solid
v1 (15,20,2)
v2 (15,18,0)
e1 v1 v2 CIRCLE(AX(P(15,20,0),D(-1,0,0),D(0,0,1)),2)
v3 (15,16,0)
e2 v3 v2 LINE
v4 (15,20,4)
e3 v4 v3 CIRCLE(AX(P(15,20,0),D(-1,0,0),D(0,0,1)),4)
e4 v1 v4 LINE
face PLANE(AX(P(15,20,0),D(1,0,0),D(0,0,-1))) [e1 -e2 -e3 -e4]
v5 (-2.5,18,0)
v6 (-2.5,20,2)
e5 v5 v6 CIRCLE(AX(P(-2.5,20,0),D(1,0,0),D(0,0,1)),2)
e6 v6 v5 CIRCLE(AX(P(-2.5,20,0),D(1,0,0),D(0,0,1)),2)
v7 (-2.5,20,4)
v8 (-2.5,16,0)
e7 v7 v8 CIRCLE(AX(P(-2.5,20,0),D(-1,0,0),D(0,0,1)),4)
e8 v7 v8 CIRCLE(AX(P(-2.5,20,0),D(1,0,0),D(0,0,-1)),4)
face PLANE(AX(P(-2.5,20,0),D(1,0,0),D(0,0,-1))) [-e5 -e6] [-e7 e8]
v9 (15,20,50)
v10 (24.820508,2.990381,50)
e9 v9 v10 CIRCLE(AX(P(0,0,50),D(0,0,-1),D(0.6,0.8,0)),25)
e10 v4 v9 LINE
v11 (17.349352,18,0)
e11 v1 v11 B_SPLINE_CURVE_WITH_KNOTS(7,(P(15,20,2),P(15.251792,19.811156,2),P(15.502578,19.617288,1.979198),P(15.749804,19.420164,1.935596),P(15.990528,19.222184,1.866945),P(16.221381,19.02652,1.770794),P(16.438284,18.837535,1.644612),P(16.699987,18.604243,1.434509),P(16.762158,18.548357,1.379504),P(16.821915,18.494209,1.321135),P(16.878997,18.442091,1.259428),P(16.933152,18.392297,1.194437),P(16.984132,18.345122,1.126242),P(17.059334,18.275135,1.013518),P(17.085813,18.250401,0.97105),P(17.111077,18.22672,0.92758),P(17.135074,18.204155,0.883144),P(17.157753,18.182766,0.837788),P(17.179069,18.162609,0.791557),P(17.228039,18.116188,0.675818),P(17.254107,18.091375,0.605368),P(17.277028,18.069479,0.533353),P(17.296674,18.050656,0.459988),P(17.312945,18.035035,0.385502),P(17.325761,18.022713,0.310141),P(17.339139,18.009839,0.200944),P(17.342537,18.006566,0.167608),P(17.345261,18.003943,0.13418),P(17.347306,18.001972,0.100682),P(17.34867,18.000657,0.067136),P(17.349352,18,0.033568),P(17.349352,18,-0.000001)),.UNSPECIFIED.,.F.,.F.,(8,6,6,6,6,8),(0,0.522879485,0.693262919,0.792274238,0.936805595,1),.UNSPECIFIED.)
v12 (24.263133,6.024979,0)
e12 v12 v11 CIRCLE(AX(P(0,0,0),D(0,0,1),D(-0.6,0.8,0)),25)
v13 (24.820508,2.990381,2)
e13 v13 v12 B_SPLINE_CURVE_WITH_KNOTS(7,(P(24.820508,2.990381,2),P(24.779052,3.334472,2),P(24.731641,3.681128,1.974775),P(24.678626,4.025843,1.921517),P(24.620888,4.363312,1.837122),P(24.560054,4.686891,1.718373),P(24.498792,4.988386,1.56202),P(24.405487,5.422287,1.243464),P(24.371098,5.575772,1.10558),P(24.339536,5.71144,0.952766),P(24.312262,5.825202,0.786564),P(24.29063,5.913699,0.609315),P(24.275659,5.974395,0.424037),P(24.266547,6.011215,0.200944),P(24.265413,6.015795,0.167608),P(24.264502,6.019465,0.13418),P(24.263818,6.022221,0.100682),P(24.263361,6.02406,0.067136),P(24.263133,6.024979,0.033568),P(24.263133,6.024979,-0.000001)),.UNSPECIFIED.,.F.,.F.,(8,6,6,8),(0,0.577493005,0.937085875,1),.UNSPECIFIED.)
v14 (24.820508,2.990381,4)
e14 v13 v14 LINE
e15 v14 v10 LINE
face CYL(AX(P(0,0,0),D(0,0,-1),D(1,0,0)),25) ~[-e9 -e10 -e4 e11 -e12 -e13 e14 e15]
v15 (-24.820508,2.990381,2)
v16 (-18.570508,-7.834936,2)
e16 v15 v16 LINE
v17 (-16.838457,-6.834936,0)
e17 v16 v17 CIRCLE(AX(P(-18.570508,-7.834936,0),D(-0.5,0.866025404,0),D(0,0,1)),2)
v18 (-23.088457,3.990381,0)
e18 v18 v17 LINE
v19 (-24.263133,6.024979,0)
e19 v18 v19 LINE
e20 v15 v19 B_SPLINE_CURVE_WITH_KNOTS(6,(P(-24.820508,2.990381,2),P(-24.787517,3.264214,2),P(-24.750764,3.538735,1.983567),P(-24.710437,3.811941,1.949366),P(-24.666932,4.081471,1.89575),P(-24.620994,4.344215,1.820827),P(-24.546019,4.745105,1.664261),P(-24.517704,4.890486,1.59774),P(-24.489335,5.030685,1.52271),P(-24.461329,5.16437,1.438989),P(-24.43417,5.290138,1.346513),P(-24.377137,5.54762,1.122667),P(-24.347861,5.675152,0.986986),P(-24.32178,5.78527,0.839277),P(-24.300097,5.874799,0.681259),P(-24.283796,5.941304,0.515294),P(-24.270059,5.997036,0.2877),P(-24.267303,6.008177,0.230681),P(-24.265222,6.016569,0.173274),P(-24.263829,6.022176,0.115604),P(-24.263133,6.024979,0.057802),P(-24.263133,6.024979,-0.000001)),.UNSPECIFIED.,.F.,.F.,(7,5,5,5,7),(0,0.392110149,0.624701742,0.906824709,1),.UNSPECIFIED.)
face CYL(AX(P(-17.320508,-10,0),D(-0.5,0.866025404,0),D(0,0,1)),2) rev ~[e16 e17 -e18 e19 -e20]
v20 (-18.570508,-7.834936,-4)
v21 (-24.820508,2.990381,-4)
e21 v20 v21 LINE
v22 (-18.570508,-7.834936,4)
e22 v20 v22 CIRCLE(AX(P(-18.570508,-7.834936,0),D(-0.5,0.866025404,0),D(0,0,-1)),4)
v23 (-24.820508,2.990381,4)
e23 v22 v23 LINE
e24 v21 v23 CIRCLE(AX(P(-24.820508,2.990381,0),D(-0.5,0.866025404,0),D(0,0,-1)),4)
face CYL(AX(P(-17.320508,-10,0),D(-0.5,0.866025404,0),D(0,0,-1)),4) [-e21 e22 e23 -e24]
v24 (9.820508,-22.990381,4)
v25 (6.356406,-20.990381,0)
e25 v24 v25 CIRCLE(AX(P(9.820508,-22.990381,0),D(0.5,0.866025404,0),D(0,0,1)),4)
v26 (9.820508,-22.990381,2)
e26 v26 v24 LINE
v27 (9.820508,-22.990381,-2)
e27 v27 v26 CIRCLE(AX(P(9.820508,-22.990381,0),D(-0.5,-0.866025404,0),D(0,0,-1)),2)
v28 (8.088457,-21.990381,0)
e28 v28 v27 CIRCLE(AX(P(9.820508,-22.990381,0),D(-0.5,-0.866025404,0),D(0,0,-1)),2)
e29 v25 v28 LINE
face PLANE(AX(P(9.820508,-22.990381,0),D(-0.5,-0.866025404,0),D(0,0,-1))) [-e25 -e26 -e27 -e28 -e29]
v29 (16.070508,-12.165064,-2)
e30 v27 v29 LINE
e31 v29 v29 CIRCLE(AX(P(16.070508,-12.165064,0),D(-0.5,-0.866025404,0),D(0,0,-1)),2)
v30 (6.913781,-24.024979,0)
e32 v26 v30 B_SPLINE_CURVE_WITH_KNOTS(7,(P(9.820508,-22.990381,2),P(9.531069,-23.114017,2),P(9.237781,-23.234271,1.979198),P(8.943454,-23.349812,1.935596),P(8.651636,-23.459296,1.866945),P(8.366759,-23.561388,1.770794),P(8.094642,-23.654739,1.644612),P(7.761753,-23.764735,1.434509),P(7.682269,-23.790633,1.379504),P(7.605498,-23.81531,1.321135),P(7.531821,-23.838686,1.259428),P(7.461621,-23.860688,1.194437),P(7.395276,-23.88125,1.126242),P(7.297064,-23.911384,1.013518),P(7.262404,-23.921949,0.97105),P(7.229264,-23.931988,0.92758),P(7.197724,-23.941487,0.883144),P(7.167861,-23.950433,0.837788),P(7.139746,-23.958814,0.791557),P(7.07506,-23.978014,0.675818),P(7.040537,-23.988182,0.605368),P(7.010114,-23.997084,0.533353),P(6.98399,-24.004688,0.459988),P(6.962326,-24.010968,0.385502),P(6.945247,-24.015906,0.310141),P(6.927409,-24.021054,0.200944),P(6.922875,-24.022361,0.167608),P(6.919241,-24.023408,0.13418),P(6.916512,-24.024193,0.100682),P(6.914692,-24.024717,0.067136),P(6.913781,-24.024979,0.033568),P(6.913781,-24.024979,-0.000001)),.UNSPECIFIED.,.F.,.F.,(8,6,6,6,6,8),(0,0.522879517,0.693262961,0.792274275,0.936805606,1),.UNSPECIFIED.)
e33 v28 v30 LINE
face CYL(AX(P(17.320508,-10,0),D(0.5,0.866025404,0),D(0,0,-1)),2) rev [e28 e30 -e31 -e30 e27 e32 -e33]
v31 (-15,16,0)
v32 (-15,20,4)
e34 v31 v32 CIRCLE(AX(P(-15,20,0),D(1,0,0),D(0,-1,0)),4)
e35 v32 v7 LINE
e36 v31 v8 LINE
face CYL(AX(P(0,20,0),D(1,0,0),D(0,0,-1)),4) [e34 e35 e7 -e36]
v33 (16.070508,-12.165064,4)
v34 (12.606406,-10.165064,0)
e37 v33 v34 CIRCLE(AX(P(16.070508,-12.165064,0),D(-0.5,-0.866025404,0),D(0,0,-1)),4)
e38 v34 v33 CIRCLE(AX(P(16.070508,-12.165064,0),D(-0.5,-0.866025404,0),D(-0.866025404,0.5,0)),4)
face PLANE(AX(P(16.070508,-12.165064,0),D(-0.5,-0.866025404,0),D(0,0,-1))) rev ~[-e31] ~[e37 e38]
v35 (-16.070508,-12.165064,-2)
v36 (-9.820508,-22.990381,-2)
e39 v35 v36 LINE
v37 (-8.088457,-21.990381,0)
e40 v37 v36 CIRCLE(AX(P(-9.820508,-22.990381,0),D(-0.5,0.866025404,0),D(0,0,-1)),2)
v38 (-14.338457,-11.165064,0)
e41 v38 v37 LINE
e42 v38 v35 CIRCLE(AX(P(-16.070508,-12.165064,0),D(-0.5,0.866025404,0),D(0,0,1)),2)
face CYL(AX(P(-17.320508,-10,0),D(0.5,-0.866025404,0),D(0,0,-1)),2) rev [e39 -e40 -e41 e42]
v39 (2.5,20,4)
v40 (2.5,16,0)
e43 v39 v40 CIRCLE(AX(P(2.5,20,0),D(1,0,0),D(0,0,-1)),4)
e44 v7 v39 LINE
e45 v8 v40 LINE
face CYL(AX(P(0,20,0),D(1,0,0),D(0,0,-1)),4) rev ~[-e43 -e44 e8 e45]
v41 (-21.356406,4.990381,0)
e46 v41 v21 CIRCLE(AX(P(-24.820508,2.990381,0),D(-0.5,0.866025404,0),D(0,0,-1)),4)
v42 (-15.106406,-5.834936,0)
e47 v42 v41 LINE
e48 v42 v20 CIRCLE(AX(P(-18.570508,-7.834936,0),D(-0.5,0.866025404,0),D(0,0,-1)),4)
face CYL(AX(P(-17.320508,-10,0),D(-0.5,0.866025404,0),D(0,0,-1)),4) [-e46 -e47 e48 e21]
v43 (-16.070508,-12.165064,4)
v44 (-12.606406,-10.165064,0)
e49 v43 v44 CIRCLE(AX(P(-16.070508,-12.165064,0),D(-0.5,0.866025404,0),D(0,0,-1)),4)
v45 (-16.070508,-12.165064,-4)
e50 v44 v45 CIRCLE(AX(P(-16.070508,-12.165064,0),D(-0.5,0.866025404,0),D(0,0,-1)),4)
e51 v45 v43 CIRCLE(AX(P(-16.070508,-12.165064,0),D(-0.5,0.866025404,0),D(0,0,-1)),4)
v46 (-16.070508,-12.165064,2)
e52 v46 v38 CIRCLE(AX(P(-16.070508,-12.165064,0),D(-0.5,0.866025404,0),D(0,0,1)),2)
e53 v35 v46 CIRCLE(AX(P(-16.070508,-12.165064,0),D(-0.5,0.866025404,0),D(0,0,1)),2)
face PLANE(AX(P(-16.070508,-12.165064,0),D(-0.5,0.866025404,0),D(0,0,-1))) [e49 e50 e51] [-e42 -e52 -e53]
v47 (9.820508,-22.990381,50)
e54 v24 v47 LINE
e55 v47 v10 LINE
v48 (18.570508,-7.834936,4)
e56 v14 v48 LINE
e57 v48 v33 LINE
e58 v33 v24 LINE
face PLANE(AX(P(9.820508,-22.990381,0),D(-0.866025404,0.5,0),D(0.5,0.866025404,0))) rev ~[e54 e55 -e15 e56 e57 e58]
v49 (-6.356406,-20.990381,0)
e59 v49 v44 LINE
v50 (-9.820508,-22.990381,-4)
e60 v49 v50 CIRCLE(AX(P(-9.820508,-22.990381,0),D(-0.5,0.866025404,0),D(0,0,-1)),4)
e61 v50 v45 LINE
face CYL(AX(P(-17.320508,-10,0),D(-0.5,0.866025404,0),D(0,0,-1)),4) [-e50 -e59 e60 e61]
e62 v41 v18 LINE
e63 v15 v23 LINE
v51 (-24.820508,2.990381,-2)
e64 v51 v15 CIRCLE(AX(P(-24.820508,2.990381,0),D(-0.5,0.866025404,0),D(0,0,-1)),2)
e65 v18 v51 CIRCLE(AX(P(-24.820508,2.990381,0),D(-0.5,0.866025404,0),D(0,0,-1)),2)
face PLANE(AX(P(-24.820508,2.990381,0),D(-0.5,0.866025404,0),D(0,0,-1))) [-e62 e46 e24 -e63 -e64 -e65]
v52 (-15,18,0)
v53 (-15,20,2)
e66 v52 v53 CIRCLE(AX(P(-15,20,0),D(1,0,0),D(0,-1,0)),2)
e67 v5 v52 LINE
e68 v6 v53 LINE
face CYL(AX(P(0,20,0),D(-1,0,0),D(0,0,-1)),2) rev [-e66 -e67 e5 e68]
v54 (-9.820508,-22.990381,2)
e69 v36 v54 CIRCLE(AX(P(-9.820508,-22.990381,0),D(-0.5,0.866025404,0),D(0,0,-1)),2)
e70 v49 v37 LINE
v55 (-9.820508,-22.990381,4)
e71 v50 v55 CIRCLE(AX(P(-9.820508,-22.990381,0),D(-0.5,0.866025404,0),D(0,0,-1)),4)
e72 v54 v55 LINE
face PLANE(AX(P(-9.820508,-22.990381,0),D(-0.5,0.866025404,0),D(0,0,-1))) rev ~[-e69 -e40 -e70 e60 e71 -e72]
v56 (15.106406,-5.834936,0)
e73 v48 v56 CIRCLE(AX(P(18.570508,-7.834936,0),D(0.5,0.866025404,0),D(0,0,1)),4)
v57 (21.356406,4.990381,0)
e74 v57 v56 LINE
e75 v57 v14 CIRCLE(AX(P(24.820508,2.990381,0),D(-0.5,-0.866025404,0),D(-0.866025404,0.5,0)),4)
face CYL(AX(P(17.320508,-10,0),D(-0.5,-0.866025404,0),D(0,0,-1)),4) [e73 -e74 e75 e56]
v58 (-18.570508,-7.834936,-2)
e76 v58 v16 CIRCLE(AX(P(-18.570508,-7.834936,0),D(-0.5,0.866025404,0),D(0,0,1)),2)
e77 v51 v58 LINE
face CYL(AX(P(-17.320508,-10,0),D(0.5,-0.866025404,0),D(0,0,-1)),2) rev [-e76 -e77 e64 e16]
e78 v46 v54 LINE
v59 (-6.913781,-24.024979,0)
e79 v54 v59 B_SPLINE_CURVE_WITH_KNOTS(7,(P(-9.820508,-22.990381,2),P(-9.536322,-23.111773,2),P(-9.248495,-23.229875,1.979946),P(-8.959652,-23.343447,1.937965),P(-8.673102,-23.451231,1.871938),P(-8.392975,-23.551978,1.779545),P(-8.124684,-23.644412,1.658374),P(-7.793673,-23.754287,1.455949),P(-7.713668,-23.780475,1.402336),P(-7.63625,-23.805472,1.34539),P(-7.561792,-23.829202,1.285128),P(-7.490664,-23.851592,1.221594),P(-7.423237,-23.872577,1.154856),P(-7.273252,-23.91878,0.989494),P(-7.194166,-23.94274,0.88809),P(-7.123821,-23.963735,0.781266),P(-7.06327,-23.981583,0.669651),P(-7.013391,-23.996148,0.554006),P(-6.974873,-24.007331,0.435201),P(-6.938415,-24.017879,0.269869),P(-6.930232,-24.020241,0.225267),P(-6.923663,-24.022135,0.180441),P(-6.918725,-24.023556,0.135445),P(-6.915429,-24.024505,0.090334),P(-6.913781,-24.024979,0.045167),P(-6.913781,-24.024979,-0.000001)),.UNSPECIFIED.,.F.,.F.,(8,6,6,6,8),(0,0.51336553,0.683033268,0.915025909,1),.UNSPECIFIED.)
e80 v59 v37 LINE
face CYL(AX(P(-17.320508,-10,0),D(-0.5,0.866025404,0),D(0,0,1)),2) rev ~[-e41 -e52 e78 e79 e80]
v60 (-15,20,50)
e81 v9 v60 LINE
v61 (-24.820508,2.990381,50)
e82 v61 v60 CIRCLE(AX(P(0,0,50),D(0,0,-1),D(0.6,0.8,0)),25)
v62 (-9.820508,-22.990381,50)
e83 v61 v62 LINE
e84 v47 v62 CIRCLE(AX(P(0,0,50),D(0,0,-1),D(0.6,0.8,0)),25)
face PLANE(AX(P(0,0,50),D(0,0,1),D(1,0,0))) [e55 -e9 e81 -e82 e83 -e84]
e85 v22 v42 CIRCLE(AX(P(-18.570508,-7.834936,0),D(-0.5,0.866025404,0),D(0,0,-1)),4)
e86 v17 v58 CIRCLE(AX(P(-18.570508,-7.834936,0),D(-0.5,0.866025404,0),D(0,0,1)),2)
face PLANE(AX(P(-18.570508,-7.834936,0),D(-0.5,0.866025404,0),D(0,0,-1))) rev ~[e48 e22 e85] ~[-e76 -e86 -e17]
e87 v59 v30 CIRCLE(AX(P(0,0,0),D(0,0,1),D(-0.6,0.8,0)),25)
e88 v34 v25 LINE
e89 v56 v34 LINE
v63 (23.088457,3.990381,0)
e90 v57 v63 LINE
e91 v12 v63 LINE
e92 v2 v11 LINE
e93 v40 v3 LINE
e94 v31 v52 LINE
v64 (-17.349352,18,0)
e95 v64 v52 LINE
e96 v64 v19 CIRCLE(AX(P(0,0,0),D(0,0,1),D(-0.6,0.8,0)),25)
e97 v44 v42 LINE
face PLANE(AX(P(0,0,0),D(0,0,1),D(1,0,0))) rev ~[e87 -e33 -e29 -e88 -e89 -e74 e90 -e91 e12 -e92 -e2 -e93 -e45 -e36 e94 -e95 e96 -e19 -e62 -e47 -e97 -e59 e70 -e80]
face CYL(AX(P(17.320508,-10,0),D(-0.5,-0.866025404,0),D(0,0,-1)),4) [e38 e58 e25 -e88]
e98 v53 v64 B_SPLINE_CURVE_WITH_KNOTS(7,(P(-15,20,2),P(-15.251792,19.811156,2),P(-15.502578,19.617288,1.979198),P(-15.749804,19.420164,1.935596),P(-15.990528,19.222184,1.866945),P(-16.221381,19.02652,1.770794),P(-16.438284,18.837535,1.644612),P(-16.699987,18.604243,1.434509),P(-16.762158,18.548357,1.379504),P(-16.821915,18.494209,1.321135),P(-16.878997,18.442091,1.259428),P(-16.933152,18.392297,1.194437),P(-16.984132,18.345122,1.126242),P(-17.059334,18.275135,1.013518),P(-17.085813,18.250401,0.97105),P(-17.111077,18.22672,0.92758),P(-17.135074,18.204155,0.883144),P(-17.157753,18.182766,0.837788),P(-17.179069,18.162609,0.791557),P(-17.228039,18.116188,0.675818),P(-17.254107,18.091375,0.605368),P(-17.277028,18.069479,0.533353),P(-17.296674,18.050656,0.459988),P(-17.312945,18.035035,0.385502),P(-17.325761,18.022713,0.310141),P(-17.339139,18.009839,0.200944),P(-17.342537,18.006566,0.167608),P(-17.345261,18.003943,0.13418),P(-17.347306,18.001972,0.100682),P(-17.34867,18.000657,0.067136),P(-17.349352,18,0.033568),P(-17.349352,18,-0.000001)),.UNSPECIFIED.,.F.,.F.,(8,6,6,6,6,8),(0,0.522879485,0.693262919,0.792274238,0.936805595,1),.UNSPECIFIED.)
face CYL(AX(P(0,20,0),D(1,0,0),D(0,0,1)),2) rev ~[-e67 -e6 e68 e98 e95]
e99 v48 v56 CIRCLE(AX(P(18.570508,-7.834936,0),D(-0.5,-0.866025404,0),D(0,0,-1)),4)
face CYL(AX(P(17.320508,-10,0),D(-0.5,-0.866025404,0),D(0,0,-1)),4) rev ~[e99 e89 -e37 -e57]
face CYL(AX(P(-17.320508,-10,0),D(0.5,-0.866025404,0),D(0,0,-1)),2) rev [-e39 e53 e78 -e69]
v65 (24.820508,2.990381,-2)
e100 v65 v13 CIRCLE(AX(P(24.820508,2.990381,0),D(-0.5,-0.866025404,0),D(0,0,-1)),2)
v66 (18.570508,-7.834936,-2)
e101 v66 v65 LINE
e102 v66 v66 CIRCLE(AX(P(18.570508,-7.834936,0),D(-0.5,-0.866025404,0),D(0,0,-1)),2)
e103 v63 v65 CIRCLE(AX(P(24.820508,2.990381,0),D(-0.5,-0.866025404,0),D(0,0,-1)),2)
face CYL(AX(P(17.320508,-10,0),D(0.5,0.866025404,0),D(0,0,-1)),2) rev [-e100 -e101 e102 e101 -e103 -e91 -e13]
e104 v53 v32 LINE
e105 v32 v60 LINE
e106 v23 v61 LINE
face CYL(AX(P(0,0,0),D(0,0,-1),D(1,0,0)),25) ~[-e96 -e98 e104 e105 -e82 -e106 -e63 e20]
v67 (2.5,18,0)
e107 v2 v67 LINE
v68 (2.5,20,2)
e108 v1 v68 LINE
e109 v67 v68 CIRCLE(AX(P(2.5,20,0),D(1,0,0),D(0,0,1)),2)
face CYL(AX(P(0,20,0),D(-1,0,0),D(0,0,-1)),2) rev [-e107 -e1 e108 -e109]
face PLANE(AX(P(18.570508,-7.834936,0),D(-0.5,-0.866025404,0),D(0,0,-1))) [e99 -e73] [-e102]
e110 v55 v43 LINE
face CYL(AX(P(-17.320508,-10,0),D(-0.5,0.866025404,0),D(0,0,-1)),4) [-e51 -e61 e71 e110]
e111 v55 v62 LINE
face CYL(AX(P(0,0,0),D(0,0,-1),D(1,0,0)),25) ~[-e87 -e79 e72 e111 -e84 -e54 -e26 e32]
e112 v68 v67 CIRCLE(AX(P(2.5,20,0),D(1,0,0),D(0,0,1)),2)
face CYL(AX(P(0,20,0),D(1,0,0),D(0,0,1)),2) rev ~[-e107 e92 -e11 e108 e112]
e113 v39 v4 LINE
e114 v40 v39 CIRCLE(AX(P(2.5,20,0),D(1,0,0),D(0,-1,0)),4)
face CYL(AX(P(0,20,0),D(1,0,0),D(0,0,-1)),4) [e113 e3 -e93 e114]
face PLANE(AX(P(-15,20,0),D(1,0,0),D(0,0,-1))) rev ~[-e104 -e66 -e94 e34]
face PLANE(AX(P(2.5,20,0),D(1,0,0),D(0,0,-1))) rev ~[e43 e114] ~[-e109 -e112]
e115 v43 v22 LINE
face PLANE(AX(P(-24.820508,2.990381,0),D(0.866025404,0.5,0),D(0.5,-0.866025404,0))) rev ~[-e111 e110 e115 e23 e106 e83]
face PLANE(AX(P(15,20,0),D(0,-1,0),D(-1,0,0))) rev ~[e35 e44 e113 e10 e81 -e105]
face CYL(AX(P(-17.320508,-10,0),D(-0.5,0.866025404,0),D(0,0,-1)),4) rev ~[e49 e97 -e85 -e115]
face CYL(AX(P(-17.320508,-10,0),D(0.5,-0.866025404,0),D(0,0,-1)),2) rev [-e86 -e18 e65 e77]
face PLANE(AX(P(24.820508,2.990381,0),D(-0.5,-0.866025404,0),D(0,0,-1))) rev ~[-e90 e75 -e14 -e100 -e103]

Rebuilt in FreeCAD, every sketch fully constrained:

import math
import FreeCAD as App
import Part
import Sketcher
from FreeCAD import Vector
Q = App.Units.Quantity

doc = App.newDocument("Part")
params = doc.addObject("Spreadsheet::Sheet", "Params")
for row, (alias, value) in enumerate([
    ("sketch1_diameter", "50 mm"),
    ("pad1_length", "50 mm"),
    ("sketch2_radius", "25 mm"),
    ("sketch2_width", "30 mm"),
    ("pocket1_length", "50 mm"),
    ("sketch3_diameter", "8 mm"),
    ("sketch3_diameter2", "4 mm"),
    ("pad2_length", "30 mm"),
    ("sketch4_diameter", "4 mm"),
    ("pocket2_length", "40 mm"),
    ("sketch5_diameter", "8 mm"),
    ("sketch5_diameter2", "4 mm"),
    ("pocket3_length", "5 mm"),
], start=1):
    params.set(f"A{row}", alias)
    params.set(f"B{row}", "=" + value)
    params.setAlias(f"B{row}", alias)

body = doc.addObject("PartDesign::Body", "Body")

# Sketch on XY plane
sketch1 = doc.addObject("Sketcher::SketchObject", "Sketch")
body.addObject(sketch1)
sketch1.AttachmentSupport = (doc.XY_Plane, [""])
sketch1.MapMode = "FlatFace"
sketch1.addGeometry(Part.Circle(Vector(0, 0, 0), Vector(0, 0, 1), 25), False)
sketch1.addConstraint([
    Sketcher.Constraint("Coincident", 0, 3, -1, 1),
    Sketcher.Constraint("Diameter", 0, Q("50 mm")),
])
sketch1.setExpression("Constraints[1]", "Params.sketch1_diameter")
pad1 = doc.addObject("PartDesign::Pad", "Pad")
body.addObject(pad1)
pad1.Profile = sketch1
pad1.setExpression("Length", "Params.pad1_length")

# Sketch on XY plane
sketch2 = doc.addObject("Sketcher::SketchObject", "Sketch001")
body.addObject(sketch2)
sketch2.AttachmentSupport = (doc.XY_Plane, [""])
sketch2.MapMode = "FlatFace"
sketch2.addGeometry([
    Part.LineSegment(Vector(15, 20, 0), Vector(-15, 20, 0)),
    Part.ArcOfCircle(Part.Circle(Vector(0, 0, 0), Vector(0, 0, 1), 25), math.radians(53), math.radians(127)),
], False)
sketch2.addConstraint([
    Sketcher.Constraint("Coincident", 0, 1, 1, 1),
    Sketcher.Constraint("Coincident", 1, 2, 0, 2),
    Sketcher.Constraint("Horizontal", 0),
    Sketcher.Constraint("Coincident", 1, 3, -1, 1),
    Sketcher.Constraint("Radius", 1, Q("25 mm")),
    Sketcher.Constraint("DistanceX", 0, 2, 0, 1, Q("30 mm")),
])
sketch2.setExpression("Constraints[4]", "Params.sketch2_radius")
sketch2.setExpression("Constraints[5]", "Params.sketch2_width")
pocket1 = doc.addObject("PartDesign::Pocket", "Pocket")
body.addObject(pocket1)
pocket1.Profile = sketch2
pocket1.setExpression("Length", "Params.pocket1_length")
pocket1.Reversed = True
doc.recompute()

polarpattern = doc.addObject("PartDesign::PolarPattern", "PolarPattern")
body.addObject(polarpattern)
polarpattern.Originals = [pocket1]
polarpattern.Axis = (doc.Z_Axis, [""])
polarpattern.Angle = 360
polarpattern.Occurrences = 3
body.Tip = polarpattern

# Sketch on YZ plane
sketch3 = doc.addObject("Sketcher::SketchObject", "Sketch002")
body.addObject(sketch3)
sketch3.AttachmentSupport = (doc.YZ_Plane, [""])
sketch3.MapMode = "FlatFace"
sketch3.addGeometry([
    Part.Circle(Vector(20, 0, 0), Vector(0, 0, 1), 4),
    Part.Circle(Vector(20, 0, 0), Vector(0, 0, 1), 2),
], False)
sketch3.addConstraint([
    Sketcher.Constraint("Coincident", 1, 3, 0, 3),
    Sketcher.Constraint("PointOnObject", 0, 3, -1),
    Sketcher.Constraint("Diameter", 0, Q("8 mm")),
    Sketcher.Constraint("Diameter", 1, Q("4 mm")),
    Sketcher.Constraint("DistanceX", -1, 1, 0, 3, Q("20 mm")),
])
sketch3.setExpression("Constraints[2]", "Params.sketch3_diameter")
sketch3.setExpression("Constraints[3]", "Params.sketch3_diameter2")
pad2 = doc.addObject("PartDesign::Pad", "Pad001")
body.addObject(pad2)
pad2.Profile = sketch3
pad2.setExpression("Length", "Params.pad2_length")
pad2.Midplane = True

# Sketch on YZ plane
sketch4 = doc.addObject("Sketcher::SketchObject", "Sketch003")
body.addObject(sketch4)
sketch4.AttachmentSupport = (doc.YZ_Plane, [""])
sketch4.MapMode = "FlatFace"
sketch4.addGeometry(Part.Circle(Vector(20, 0, 0), Vector(0, 0, 1), 2), False)
sketch4.addConstraint([
    Sketcher.Constraint("PointOnObject", 0, 3, -1),
    Sketcher.Constraint("Diameter", 0, Q("4 mm")),
    Sketcher.Constraint("DistanceX", -1, 1, 0, 3, Q("20 mm")),
])
sketch4.setExpression("Constraints[1]", "Params.sketch4_diameter")
pocket2 = doc.addObject("PartDesign::Pocket", "Pocket001")
body.addObject(pocket2)
pocket2.Profile = sketch4
pocket2.setExpression("Length", "Params.pocket2_length")
pocket2.Midplane = True
doc.recompute()

polarpattern2 = doc.addObject("PartDesign::PolarPattern", "PolarPattern001")
body.addObject(polarpattern2)
polarpattern2.Originals = [pad2]
polarpattern2.Axis = (doc.Z_Axis, [""])
polarpattern2.Angle = 360
polarpattern2.Occurrences = 3
body.Tip = polarpattern2
doc.recompute()

polarpattern3 = doc.addObject("PartDesign::PolarPattern", "PolarPattern002")
body.addObject(polarpattern3)
polarpattern3.Originals = [pocket2]
polarpattern3.Axis = (doc.Z_Axis, [""])
polarpattern3.Angle = 360
polarpattern3.Occurrences = 3
body.Tip = polarpattern3

# Sketch on YZ plane
sketch5 = doc.addObject("Sketcher::SketchObject", "Sketch004")
body.addObject(sketch5)
sketch5.AttachmentSupport = (doc.YZ_Plane, [""])
sketch5.MapMode = "FlatFace"
sketch5.addGeometry([
    Part.Circle(Vector(20, 0, 0), Vector(0, 0, 1), 4),
    Part.Circle(Vector(20, 0, 0), Vector(0, 0, 1), 2),
], False)
sketch5.addConstraint([
    Sketcher.Constraint("Coincident", 1, 3, 0, 3),
    Sketcher.Constraint("PointOnObject", 0, 3, -1),
    Sketcher.Constraint("Diameter", 0, Q("8 mm")),
    Sketcher.Constraint("Diameter", 1, Q("4 mm")),
    Sketcher.Constraint("DistanceX", -1, 1, 0, 3, Q("20 mm")),
])
sketch5.setExpression("Constraints[2]", "Params.sketch5_diameter")
sketch5.setExpression("Constraints[3]", "Params.sketch5_diameter2")
pocket3 = doc.addObject("PartDesign::Pocket", "Pocket002")
body.addObject(pocket3)
pocket3.Profile = sketch5
pocket3.setExpression("Length", "Params.pocket3_length")
pocket3.Midplane = True
doc.recompute()

polarpattern4 = doc.addObject("PartDesign::PolarPattern", "PolarPattern003")
body.addObject(polarpattern4)
polarpattern4.Originals = [pocket3]
polarpattern4.Axis = (doc.Z_Axis, [""])
polarpattern4.Angle = 360
polarpattern4.Occurrences = 3
body.Tip = polarpattern4

doc.recompute()
